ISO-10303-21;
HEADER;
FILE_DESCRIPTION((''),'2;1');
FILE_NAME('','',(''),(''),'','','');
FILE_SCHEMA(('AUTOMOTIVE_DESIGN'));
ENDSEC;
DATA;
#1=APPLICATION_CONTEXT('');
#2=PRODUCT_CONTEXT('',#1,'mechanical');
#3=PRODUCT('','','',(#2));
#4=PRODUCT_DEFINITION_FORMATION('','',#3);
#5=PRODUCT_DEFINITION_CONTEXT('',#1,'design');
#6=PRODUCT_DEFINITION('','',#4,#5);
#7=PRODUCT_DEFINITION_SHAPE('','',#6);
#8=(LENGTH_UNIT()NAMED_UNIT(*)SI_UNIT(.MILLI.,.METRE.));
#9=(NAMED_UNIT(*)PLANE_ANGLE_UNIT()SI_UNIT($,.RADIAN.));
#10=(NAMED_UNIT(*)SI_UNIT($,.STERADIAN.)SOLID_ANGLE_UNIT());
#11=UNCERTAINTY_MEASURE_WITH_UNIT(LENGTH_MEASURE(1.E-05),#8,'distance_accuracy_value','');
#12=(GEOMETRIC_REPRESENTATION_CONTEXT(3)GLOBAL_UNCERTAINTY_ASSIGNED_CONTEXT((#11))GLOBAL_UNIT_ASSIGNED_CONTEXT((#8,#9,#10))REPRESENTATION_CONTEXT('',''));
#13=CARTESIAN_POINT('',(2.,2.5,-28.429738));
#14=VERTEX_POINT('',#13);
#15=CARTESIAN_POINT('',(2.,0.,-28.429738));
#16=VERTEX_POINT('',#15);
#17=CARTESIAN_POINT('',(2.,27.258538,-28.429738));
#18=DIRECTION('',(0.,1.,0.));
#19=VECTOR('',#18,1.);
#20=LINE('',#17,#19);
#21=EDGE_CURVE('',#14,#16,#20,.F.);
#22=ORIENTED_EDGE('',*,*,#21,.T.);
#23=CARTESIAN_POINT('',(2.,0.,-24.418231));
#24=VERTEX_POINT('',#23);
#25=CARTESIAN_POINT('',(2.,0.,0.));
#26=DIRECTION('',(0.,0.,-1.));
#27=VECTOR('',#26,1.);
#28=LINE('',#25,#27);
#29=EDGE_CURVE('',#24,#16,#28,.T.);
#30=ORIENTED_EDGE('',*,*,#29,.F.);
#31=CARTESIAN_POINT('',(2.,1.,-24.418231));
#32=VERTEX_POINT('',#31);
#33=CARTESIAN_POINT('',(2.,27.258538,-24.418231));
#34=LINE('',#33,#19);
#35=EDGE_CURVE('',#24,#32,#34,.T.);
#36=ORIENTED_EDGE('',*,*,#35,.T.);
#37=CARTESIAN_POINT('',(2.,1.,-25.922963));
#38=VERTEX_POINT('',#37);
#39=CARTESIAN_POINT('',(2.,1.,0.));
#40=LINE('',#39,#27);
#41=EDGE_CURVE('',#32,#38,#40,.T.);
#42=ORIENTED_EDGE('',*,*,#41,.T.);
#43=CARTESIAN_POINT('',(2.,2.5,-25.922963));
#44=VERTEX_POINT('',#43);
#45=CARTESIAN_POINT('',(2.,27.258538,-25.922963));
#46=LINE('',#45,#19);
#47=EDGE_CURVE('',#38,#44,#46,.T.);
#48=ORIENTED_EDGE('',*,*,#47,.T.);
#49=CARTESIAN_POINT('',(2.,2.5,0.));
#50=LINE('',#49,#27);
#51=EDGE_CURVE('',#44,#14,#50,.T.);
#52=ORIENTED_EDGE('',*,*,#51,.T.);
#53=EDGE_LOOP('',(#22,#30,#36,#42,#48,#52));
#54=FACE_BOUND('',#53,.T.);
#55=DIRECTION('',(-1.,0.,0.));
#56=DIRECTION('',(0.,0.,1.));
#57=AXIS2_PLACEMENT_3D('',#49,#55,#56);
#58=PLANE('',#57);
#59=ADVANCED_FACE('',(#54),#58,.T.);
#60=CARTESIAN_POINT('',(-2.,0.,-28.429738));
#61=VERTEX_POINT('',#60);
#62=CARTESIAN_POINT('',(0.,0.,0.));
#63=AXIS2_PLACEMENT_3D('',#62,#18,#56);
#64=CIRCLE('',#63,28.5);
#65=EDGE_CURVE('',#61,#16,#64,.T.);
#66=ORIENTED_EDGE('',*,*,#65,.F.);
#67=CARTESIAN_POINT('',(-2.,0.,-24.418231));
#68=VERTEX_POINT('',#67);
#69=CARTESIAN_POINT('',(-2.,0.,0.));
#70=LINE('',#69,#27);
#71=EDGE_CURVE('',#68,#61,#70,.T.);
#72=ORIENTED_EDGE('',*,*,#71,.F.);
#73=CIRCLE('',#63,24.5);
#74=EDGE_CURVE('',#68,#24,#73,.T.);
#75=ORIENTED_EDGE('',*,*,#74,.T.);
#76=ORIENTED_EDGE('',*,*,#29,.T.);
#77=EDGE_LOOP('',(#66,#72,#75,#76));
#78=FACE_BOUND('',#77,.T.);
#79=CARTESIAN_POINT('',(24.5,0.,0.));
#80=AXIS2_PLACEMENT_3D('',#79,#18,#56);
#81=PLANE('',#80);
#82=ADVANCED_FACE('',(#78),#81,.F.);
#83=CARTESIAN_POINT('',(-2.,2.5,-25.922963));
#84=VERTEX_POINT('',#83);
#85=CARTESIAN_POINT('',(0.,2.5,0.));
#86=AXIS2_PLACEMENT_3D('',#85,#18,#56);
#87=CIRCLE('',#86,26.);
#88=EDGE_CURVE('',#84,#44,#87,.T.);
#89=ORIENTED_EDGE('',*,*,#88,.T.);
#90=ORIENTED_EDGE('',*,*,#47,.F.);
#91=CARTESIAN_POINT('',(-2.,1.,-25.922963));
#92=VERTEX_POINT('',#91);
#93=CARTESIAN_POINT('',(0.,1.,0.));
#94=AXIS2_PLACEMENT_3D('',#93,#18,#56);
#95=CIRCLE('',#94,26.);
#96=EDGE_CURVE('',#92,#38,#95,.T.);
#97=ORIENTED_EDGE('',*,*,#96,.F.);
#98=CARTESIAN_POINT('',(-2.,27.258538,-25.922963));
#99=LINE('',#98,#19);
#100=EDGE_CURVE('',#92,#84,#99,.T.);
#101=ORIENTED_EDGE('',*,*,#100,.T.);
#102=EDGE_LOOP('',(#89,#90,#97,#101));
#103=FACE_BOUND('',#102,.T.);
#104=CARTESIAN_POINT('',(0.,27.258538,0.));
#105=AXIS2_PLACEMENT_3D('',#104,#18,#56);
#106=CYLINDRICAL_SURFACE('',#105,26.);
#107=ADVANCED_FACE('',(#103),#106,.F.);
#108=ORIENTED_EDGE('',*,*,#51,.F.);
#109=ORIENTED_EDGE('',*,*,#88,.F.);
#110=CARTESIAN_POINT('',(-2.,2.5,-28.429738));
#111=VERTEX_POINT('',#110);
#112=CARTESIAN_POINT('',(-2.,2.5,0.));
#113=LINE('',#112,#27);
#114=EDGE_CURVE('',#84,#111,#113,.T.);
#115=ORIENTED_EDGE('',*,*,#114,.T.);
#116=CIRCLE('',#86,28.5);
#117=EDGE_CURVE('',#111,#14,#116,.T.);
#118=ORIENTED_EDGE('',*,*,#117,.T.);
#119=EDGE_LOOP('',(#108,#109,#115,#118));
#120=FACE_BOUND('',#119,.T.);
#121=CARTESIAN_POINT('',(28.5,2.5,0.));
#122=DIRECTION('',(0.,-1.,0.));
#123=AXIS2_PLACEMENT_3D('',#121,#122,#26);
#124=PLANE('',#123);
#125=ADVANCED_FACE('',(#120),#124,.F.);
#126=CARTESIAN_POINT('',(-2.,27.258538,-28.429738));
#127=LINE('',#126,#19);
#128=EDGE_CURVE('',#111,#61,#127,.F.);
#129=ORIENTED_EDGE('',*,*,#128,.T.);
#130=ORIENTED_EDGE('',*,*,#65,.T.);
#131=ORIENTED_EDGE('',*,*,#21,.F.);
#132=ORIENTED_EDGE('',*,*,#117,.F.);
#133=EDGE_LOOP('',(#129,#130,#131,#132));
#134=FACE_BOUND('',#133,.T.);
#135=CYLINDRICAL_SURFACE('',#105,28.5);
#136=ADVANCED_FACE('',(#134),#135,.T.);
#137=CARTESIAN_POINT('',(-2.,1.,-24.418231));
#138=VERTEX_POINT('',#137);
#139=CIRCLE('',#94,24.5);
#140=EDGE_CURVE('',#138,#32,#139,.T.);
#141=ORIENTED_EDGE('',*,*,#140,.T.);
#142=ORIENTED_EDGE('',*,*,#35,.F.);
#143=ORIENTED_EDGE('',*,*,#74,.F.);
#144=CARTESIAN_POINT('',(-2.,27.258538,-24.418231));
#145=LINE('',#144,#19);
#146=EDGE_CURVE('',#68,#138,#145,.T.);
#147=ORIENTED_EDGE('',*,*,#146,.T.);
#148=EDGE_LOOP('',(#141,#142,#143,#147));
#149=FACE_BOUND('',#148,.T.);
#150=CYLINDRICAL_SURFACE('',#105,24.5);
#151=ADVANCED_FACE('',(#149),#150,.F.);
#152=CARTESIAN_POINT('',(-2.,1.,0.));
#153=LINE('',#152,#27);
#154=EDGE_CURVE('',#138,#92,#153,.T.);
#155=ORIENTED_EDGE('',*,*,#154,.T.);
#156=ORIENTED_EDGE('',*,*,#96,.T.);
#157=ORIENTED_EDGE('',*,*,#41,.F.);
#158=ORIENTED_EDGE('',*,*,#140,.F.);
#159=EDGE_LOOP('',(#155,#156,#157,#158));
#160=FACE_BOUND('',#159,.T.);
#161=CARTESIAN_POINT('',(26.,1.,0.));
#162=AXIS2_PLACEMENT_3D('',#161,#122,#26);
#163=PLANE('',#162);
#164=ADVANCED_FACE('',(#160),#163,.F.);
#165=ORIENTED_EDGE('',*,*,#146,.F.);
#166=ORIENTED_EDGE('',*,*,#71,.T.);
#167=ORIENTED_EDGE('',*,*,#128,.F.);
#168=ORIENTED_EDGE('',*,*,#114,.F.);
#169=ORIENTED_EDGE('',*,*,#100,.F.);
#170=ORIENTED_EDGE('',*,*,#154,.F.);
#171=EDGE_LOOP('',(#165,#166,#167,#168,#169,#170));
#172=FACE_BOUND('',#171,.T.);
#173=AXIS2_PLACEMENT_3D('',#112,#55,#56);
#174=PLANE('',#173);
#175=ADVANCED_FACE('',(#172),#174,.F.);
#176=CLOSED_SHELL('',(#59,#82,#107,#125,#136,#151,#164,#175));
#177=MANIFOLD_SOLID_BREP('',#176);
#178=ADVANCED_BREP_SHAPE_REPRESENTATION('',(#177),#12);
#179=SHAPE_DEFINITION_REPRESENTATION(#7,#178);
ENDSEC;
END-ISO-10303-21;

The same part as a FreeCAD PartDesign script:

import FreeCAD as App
import Part
import Sketcher
Q = App.Units.Quantity


def add_polygon(sketch, points):
    """Adds a closed chain of lines whose ends are joined by coincident constraints."""
    first, n = sketch.GeometryCount, len(points)
    for a, b in zip(points, points[1:] + points[:1]):
        sketch.addGeometry(Part.LineSegment(App.Vector(*a, 0), App.Vector(*b, 0)), False)
    for i in range(n):
        sketch.addConstraint(Sketcher.Constraint("Coincident", first + i, 2, first + (i + 1) % n, 1))

doc = App.newDocument("Part")
body = doc.addObject("PartDesign::Body", "Body")

sketch1 = doc.addObject("Sketcher::SketchObject", "Sketch")
body.addObject(sketch1)
sketch1.AttachmentSupport = (doc.XY_Plane, [""])
sketch1.MapMode = "FlatFace"
add_polygon(sketch1, [(24.5, 0), (28.5, 0), (28.5, 2.5), (26, 2.5), (26, 1), (24.5, 1)])
sketch1.addConstraint(Sketcher.Constraint("Horizontal", 0))
sketch1.addConstraint(Sketcher.Constraint("Vertical", 1))
sketch1.addConstraint(Sketcher.Constraint("Horizontal", 2))
sketch1.addConstraint(Sketcher.Constraint("Vertical", 3))
sketch1.addConstraint(Sketcher.Constraint("Horizontal", 4))
sketch1.addConstraint(Sketcher.Constraint("Vertical", 5))
sketch1.addConstraint(Sketcher.Constraint("PointOnObject", 0, 2, -1))
sketch1.addConstraint(Sketcher.Constraint("Equal", 2, 1))
sketch1.addConstraint(Sketcher.Constraint("Equal", 4, 3))
sketch1.addConstraint(Sketcher.Constraint("DistanceX", 0, 1, 0, 2, Q("4 mm")))
sketch1.addConstraint(Sketcher.Constraint("DistanceY", 5, 2, 5, 1, Q("1 mm")))
sketch1.addConstraint(Sketcher.Constraint("DistanceX", -1, 1, 2, 2, Q("26 mm")))
revolution = doc.addObject("PartDesign::Revolution", "Revolution")
body.addObject(revolution)
revolution.Profile = sketch1
revolution.ReferenceAxis = (sketch1, ["V_Axis"])
revolution.Angle = 360

sketch2 = doc.addObject("Sketcher::SketchObject", "Sketch001")
body.addObject(sketch2)
sketch2.AttachmentSupport = (doc.XZ_Plane, [""])
sketch2.MapMode = "FlatFace"
add_polygon(sketch2, [(-2, -52), (-2, 0), (2, 0), (2, -52)])
sketch2.addConstraint(Sketcher.Constraint("Vertical", 0))
sketch2.addConstraint(Sketcher.Constraint("Horizontal", 1))
sketch2.addConstraint(Sketcher.Constraint("Vertical", 2))
sketch2.addConstraint(Sketcher.Constraint("Horizontal", 3))
sketch2.addConstraint(Sketcher.Constraint("Symmetric", 0, 2, 1, 2, -1, 1))
sketch2.addConstraint(Sketcher.Constraint("DistanceX", 1, 1, 1, 2, Q("4 mm")))
sketch2.addConstraint(Sketcher.Constraint("DistanceY", 0, 1, 0, 2, Q("52 mm")))
pocket1 = doc.addObject("PartDesign::Pocket", "Pocket")
body.addObject(pocket1)
pocket1.Profile = sketch2
pocket1.Type = "ThroughAll"

doc.recompute()
